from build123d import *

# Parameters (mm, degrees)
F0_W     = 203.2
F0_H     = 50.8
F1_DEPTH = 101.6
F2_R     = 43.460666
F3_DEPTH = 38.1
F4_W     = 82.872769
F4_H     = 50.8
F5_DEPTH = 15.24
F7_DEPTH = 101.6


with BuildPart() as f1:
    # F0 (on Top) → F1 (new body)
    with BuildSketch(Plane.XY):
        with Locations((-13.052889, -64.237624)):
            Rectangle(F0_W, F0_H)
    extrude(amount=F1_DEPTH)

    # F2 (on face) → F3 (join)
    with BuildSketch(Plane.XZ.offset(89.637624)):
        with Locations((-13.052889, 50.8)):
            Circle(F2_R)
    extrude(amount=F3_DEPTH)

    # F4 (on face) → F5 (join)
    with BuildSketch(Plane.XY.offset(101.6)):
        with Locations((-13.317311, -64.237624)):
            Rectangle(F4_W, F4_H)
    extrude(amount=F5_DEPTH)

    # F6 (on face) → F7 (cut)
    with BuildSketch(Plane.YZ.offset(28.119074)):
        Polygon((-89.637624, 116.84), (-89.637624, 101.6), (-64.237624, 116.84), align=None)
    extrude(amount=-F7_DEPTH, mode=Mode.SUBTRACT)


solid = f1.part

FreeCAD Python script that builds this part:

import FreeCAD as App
import Part
import Sketcher
Q = App.Units.Quantity


def add_polygon(sketch, points):
    """Adds a closed chain of lines whose ends are joined by coincident constraints."""
    first, n = sketch.GeometryCount, len(points)
    for a, b in zip(points, points[1:] + points[:1]):
        sketch.addGeometry(Part.LineSegment(App.Vector(*a, 0), App.Vector(*b, 0)), False)
    for i in range(n):
        sketch.addConstraint(Sketcher.Constraint("Coincident", first + i, 2, first + (i + 1) % n, 1))

doc = App.newDocument("Part")
params = doc.addObject("Spreadsheet::Sheet", "Params")
for row, (alias, value) in enumerate([
    ("sketch1_width", "8 in"),
    ("sketch1_height", "2 in"),
    ("pad1_length", "4 in"),
    ("pad2_length", "1.5 in"),
    ("sketch3_height", "2 in"),
    ("pad3_length", "0.6 in"),
    ("sketch4_width", "1 in"),
    ("sketch4_height", "0.6 in"),
    ("pocket1_length", "4 in"),
], start=1):
    params.set(f"A{row}", alias)
    params.set(f"B{row}", "=" + value)
    params.setAlias(f"B{row}", alias)

body = doc.addObject("PartDesign::Body", "Body")

# Sketch on XY plane
sketch1 = body.newObject("Sketcher::SketchObject", "Sketch")
sketch1.AttachmentSupport = (doc.getObject("XY_Plane"), [""])
sketch1.MapMode = "FlatFace"
add_polygon(sketch1, [(-114.652889, -38.837624), (-114.652889, -89.637624), (88.547111, -89.637624), (88.547111, -38.837624)])  # lines 0-3
sketch1.addConstraint([
    Sketcher.Constraint("Vertical", 0),
    Sketcher.Constraint("Horizontal", 1),
    Sketcher.Constraint("Vertical", 2),
    Sketcher.Constraint("Horizontal", 3),
    Sketcher.Constraint("DistanceX", 1, 1, 1, 2, Q("8 in")),
    Sketcher.Constraint("DistanceY", 0, 2, 0, 1, Q("2 in")),
    Sketcher.Constraint("DistanceX", 0, 2, -1, 1, Q("114.652889 mm")),
    Sketcher.Constraint("DistanceY", 0, 2, -1, 1, Q("89.637624 mm")),
])
sketch1.setExpression("Constraints[8]", "Params.sketch1_width")
sketch1.setExpression("Constraints[9]", "Params.sketch1_height")
pad1 = body.newObject("PartDesign::Pad", "Pad")
pad1.Profile = sketch1
pad1.setExpression("Length", "Params.pad1_length")

# Sketch on XZ plane
sketch2 = body.newObject("Sketcher::SketchObject", "Sketch001")
sketch2.AttachmentSupport = (doc.getObject("XZ_Plane"), [""])
sketch2.MapMode = "FlatFace"
sketch2.AttachmentOffset = App.Placement(App.Vector(0, 0, 89.637624), App.Rotation())
sketch2.addGeometry(Part.Circle(App.Vector(-13.052889, 50.8, 0), App.Vector(0, 0, 1), 43.460666), False)
sketch2.addConstraint([
    Sketcher.Constraint("DistanceY", -1, 1, 0, 3, Q("2 in")),
    Sketcher.Constraint("Diameter", 0, Q("86.921332 mm")),
    Sketcher.Constraint("DistanceX", 0, 3, -1, 1, Q("13.052889 mm")),
])
pad2 = body.newObject("PartDesign::Pad", "Pad001")
pad2.Profile = sketch2
pad2.setExpression("Length", "Params.pad2_length")

# Sketch on XY plane
sketch3 = body.newObject("Sketcher::SketchObject", "Sketch002")
sketch3.AttachmentSupport = (doc.getObject("XY_Plane"), [""])
sketch3.MapMode = "FlatFace"
sketch3.AttachmentOffset = App.Placement(App.Vector(0, 0, 4 * 25.4), App.Rotation())
add_polygon(sketch3, [(-54.753695, -38.837624), (-54.753695, -89.637624), (28.119073, -89.637624), (28.119073, -38.837624)])  # lines 0-3
sketch3.addConstraint([
    Sketcher.Constraint("Vertical", 0),
    Sketcher.Constraint("Horizontal", 1),
    Sketcher.Constraint("Vertical", 2),
    Sketcher.Constraint("Horizontal", 3),
    Sketcher.Constraint("DistanceY", 0, 2, 0, 1, Q("2 in")),
    Sketcher.Constraint("DistanceX", 1, 1, 1, 2, Q("82.872769 mm")),
    Sketcher.Constraint("DistanceX", 0, 2, -1, 1, Q("54.753695 mm")),
    Sketcher.Constraint("DistanceY", 0, 2, -1, 1, Q("89.637624 mm")),
])
sketch3.setExpression("Constraints[8]", "Params.sketch3_height")
pad3 = body.newObject("PartDesign::Pad", "Pad002")
pad3.Profile = sketch3
pad3.setExpression("Length", "Params.pad3_length")

# Sketch on YZ plane
sketch4 = body.newObject("Sketcher::SketchObject", "Sketch003")
sketch4.AttachmentSupport = (doc.getObject("YZ_Plane"), [""])
sketch4.MapMode = "FlatFace"
sketch4.AttachmentOffset = App.Placement(App.Vector(0, 0, 28.119074), App.Rotation())
add_polygon(sketch4, [(-89.637624, 116.84), (-89.637624, 101.6), (-64.237624, 116.84)])  # lines 0-2
sketch4.addConstraint([
    Sketcher.Constraint("Vertical", 0),
    Sketcher.Constraint("Horizontal", 2),
    Sketcher.Constraint("DistanceX", 2, 2, 2, 1, Q("1 in")),
    Sketcher.Constraint("DistanceY", 0, 2, 0, 1, Q("0.6 in")),
    Sketcher.Constraint("DistanceY", -1, 1, 0, 2, Q("4 in")),
    Sketcher.Constraint("DistanceX", 0, 2, -1, 1, Q("89.637624 mm")),
])
sketch4.setExpression("Constraints[5]", "Params.sketch4_width")
sketch4.setExpression("Constraints[6]", "Params.sketch4_height")
pocket1 = body.newObject("PartDesign::Pocket", "Pocket")
pocket1.Profile = sketch4
pocket1.setExpression("Length", "Params.pocket1_length")

doc.recompute()
